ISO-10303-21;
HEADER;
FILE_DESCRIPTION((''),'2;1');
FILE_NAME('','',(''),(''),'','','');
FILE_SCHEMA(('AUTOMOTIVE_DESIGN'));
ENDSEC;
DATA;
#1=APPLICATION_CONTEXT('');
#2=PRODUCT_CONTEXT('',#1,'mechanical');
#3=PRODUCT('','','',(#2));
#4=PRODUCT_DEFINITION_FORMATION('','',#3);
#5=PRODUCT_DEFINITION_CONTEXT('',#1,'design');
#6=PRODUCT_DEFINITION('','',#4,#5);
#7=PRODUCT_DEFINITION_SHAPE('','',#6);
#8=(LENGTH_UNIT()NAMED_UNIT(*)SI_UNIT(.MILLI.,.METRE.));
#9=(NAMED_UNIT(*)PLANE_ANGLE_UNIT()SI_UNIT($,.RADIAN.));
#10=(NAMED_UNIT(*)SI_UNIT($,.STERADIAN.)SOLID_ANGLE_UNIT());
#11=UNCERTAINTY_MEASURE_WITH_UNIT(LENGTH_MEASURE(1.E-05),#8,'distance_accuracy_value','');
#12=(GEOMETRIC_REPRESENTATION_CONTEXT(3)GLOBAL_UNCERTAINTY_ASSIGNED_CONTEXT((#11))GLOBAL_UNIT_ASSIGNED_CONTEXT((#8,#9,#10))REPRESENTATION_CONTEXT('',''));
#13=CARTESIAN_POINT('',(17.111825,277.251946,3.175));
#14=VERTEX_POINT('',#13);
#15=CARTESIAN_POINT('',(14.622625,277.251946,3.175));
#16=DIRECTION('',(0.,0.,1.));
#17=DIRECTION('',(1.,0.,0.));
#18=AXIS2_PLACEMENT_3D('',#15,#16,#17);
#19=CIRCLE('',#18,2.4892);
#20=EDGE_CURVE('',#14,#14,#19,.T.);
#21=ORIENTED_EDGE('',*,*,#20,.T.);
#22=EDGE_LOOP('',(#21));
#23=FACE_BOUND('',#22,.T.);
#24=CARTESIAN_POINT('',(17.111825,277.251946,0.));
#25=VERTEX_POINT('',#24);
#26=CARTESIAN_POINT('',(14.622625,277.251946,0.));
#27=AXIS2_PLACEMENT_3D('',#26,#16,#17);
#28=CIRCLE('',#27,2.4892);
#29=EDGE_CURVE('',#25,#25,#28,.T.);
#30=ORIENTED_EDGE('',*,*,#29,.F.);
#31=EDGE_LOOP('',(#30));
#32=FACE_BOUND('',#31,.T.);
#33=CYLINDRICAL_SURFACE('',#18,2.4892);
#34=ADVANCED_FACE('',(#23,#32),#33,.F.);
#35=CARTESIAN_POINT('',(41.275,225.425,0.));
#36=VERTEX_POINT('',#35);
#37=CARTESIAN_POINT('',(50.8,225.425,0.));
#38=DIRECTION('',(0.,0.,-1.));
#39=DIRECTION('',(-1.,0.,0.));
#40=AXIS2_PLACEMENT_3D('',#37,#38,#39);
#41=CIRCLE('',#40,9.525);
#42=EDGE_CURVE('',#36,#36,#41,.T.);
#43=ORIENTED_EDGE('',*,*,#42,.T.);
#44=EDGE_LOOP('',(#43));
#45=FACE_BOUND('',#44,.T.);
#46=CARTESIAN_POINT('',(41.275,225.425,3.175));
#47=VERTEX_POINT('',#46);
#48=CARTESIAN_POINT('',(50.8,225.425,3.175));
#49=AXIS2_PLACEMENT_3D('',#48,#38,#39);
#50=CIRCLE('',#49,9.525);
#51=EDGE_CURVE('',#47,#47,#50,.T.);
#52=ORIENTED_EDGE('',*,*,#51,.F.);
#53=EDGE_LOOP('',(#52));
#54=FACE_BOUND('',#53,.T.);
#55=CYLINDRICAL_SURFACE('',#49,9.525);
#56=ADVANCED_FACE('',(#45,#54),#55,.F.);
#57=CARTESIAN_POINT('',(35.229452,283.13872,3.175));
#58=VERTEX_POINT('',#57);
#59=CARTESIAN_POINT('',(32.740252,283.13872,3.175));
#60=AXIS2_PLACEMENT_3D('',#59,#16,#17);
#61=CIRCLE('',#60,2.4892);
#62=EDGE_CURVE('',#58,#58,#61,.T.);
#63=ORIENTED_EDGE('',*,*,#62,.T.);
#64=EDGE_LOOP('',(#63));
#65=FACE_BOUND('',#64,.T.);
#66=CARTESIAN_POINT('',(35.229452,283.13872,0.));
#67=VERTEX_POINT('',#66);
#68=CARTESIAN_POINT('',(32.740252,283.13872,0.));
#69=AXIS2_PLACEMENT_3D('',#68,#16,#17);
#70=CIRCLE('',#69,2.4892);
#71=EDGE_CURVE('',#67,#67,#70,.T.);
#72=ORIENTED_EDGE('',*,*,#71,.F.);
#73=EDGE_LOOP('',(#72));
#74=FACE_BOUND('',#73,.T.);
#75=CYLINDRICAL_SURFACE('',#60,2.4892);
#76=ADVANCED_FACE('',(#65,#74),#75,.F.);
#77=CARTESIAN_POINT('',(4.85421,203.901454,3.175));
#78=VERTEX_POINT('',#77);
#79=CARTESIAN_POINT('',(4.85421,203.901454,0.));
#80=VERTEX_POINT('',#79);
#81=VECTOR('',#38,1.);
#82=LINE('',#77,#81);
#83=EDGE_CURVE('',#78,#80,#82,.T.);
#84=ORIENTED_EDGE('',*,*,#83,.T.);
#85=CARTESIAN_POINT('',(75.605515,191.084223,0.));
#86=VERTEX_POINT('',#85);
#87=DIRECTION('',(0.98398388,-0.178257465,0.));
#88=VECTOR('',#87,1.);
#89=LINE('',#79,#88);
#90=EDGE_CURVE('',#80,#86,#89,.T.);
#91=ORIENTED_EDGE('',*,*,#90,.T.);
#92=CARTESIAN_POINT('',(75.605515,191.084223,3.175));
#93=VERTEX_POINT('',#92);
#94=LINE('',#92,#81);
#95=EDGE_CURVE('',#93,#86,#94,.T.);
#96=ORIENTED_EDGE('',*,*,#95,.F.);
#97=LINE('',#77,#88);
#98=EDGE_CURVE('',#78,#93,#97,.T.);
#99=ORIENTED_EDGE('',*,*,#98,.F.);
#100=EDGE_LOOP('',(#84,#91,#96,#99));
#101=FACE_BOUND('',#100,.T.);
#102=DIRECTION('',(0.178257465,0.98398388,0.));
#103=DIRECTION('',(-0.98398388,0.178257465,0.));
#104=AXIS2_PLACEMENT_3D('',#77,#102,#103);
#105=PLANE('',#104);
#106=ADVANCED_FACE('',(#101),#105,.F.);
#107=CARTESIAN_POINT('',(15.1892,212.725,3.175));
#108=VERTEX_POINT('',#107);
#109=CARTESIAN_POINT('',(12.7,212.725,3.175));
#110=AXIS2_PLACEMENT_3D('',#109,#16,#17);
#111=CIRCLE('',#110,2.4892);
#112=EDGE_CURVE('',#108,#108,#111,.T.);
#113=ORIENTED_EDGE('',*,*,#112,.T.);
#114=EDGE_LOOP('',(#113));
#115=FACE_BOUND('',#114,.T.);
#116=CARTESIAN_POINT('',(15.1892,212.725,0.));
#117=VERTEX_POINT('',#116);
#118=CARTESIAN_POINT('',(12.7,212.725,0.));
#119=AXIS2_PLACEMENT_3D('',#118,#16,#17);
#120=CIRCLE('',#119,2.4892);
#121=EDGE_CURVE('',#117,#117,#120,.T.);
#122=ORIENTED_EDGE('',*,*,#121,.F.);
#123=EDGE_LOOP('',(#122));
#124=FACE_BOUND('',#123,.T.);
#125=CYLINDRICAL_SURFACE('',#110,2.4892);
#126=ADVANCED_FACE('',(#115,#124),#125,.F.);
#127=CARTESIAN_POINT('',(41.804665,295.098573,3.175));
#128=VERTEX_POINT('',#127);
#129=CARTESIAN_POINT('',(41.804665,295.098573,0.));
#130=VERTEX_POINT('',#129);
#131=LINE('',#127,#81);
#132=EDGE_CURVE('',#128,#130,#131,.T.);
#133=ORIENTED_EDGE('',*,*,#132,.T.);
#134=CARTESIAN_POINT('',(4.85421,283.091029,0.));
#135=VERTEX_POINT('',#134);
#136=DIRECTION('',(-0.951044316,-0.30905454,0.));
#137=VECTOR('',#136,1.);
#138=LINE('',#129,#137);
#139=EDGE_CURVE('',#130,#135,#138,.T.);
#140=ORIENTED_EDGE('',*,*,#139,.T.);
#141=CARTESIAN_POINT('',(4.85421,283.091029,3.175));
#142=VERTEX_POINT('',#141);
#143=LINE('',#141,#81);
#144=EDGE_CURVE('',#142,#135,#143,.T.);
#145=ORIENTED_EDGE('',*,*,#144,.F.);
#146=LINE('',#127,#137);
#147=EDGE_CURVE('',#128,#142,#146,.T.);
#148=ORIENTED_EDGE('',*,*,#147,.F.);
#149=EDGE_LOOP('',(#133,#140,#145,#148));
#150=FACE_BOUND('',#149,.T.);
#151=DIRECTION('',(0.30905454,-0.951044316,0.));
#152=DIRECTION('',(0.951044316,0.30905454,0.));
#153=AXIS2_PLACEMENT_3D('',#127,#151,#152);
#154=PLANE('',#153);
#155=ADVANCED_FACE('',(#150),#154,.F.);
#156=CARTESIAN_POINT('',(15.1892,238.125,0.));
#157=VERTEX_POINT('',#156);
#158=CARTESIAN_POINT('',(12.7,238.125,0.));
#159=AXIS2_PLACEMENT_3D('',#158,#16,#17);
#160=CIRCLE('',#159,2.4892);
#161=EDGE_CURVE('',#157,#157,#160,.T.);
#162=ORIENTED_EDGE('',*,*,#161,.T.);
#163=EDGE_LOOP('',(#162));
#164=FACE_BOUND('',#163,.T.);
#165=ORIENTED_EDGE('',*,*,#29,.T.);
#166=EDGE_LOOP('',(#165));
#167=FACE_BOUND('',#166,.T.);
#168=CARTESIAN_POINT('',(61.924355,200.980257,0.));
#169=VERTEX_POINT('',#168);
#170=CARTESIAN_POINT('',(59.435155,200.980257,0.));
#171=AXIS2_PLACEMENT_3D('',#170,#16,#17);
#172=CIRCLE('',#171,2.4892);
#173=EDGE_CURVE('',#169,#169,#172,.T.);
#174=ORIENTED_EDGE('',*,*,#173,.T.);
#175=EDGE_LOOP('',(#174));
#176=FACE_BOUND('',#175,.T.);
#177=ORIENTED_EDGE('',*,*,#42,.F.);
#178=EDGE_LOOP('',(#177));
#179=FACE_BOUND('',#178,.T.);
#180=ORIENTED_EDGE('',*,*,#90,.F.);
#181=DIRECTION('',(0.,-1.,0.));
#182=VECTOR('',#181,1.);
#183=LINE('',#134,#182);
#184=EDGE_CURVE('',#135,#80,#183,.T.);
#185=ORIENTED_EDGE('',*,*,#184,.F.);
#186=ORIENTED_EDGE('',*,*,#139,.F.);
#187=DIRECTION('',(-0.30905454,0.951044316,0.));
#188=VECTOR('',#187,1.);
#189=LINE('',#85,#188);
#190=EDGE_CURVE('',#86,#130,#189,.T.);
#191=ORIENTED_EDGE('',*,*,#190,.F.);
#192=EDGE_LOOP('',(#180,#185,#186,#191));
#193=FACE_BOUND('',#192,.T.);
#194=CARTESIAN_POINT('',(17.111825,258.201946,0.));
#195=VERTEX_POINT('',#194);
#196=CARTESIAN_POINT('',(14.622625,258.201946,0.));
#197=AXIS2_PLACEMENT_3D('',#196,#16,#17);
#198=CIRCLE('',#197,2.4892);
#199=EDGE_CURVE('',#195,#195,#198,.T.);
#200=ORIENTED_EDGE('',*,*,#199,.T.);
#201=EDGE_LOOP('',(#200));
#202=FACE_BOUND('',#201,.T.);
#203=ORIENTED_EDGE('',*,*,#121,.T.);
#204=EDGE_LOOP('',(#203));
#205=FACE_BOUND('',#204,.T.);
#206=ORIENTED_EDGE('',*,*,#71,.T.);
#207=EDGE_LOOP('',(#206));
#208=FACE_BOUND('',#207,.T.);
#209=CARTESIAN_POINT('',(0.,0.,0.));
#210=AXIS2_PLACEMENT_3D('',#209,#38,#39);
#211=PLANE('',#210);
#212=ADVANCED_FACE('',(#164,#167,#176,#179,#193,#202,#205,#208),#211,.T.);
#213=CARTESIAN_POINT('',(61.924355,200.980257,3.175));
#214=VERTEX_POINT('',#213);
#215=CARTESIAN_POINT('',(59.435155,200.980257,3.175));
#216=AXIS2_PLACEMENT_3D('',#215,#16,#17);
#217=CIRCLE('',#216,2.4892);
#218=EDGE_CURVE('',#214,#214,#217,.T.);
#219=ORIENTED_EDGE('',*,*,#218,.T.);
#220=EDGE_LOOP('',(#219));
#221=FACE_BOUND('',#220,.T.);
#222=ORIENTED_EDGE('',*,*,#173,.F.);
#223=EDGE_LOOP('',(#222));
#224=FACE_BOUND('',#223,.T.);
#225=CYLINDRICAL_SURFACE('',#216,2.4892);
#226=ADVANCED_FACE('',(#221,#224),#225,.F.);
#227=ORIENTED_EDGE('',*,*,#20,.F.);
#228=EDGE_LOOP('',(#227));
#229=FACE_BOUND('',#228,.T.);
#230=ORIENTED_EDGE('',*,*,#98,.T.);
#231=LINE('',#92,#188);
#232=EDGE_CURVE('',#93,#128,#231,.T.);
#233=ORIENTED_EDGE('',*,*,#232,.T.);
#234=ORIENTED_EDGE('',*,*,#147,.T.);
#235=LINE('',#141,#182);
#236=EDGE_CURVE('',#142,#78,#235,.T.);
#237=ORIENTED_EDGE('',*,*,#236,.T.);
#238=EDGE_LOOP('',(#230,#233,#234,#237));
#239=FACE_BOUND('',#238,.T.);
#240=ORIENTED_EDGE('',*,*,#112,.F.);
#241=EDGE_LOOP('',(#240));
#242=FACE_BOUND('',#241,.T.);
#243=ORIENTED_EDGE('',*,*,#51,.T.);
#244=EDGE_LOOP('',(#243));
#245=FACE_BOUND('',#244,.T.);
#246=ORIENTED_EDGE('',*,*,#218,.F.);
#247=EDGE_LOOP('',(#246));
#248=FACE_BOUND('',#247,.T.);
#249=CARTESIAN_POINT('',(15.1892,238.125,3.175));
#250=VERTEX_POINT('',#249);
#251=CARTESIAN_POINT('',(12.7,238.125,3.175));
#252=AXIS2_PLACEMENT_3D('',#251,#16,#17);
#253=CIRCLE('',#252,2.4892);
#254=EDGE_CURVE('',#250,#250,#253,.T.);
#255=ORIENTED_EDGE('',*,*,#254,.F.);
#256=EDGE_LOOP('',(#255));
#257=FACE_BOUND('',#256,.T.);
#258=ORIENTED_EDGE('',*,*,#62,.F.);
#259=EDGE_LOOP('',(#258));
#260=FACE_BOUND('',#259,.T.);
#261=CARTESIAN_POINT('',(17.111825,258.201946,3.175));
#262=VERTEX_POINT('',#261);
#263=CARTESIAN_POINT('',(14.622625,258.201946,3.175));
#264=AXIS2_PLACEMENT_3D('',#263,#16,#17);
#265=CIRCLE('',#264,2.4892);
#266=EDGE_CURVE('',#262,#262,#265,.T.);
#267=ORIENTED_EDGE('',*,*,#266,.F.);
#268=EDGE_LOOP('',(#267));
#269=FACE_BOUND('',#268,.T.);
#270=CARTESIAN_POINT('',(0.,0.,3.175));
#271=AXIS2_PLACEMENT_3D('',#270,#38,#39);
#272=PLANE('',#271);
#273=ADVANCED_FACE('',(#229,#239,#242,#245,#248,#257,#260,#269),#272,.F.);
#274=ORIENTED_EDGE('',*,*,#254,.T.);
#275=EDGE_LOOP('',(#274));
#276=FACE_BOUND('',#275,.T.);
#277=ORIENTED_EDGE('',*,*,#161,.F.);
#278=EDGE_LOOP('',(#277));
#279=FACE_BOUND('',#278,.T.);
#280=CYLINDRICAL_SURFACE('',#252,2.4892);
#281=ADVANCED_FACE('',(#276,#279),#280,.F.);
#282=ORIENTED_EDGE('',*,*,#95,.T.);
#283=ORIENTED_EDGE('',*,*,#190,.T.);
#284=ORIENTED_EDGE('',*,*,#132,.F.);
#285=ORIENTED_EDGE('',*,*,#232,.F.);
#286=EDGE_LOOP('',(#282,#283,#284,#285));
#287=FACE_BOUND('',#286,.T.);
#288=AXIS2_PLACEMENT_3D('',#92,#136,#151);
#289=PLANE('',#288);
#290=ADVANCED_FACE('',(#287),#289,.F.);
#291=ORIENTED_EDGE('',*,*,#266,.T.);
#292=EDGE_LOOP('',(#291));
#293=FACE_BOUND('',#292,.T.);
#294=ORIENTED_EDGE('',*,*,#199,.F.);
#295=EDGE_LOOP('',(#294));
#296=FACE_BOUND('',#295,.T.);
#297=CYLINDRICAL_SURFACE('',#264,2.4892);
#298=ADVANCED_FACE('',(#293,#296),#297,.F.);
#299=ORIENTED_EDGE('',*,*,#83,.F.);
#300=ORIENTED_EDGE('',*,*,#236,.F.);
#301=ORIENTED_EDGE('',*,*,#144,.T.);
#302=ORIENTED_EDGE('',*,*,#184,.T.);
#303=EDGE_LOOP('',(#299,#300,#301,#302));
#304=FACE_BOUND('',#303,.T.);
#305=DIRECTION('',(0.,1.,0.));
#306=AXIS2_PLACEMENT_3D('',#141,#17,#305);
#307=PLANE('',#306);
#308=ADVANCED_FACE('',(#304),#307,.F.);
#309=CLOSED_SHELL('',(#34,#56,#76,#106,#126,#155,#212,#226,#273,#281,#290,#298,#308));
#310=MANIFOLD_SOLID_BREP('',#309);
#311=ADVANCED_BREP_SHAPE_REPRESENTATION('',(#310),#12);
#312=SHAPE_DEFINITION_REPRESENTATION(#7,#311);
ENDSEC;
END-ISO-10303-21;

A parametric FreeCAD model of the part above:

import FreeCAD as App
import Part
import Sketcher
from FreeCAD import Vector
Q = App.Units.Quantity


def add_polygon(sketch, points):
    """Adds a closed chain of lines whose ends are joined by coincident constraints."""
    first, n = sketch.GeometryCount, len(points)
    for a, b in zip(points, points[1:] + points[:1]):
        sketch.addGeometry(Part.LineSegment(App.Vector(*a, 0), App.Vector(*b, 0)), False)
    for i in range(n):
        sketch.addConstraint(Sketcher.Constraint("Coincident", first + i, 2, first + (i + 1) % n, 1))

doc = App.newDocument("Part")
body = doc.addObject("PartDesign::Body", "Body")

sketch1 = body.newObject("Sketcher::SketchObject", "Sketch")
sketch1.AttachmentSupport = (doc.getObject("XY_Plane"), [""])
sketch1.MapMode = "FlatFace"
add_polygon(sketch1, [(75.605515, 191.084223), (41.804665, 295.098573), (4.85421, 283.091029), (4.85421, 203.901454)])
sketch1.addConstraint([
    Sketcher.Constraint("Vertical", 2),
    Sketcher.Constraint("DistanceY", 2, 2, 2, 1, Q("3.1176998 in")),
    Sketcher.Constraint("Distance", 3, Q("71.902911 mm")),
    Sketcher.Constraint("DistanceX", -1, 1, 1, 2, Q("4.85421 mm")),
    Sketcher.Constraint("DistanceY", -1, 1, 1, 2, Q("283.091029 mm")),
    Sketcher.Constraint("DistanceY", 2, 2, 0, 2, Q("91.197119 mm")),
    Sketcher.Constraint("DistanceY", 3, 2, 2, 2, Q("12.817231 mm")),
    Sketcher.Constraint("DistanceX", 0, 2, 3, 2, Q("33.800851 mm")),
])
pad1 = body.newObject("PartDesign::Pad", "Pad")
pad1.Profile = sketch1
pad1.Length = Q("0.125 in")

sketch2 = body.newObject("Sketcher::SketchObject", "Sketch001")
sketch2.AttachmentSupport = (doc.getObject("XY_Plane"), [""])
sketch2.MapMode = "FlatFace"
sketch2.AttachmentOffset = App.Placement(Vector(0, 0, 0.125 * 25.4), App.Rotation())
sketch2.addGeometry([
    Part.Circle(Vector(32.740252, 283.13872, 0), Vector(0, 0, 1), 2.4892),
    Part.Circle(Vector(59.435155, 200.980257, 0), Vector(0, 0, 1), 2.4892),
    Part.Circle(Vector(12.7, 238.125, 0), Vector(0, 0, 1), 2.4892),
    Part.Circle(Vector(12.7, 212.725, 0), Vector(0, 0, 1), 2.4892),
    Part.Circle(Vector(14.622625, 277.251946, 0), Vector(0, 0, 1), 2.4892),
    Part.Circle(Vector(14.622625, 258.201946, 0), Vector(0, 0, 1), 2.4892),
], False)
sketch2.addConstraint([
    Sketcher.Constraint("Equal", 0, 1),
    Sketcher.Constraint("Equal", 1, 2),
    Sketcher.Constraint("Equal", 2, 3),
    Sketcher.Constraint("Equal", 3, 4),
    Sketcher.Constraint("Equal", 4, 5),
    Sketcher.Constraint("Vertical", 2, 3, 3, 3),
    Sketcher.Constraint("Vertical", 4, 3, 5, 3),
    Sketcher.Constraint("Diameter", 0, Q("0.196 in")),
    Sketcher.Constraint("DistanceY", 3, 3, 2, 3, Q("1 in")),
    Sketcher.Constraint("DistanceX", -1, 1, 2, 3, Q("0.5 in")),
    Sketcher.Constraint("DistanceY", 5, 3, 4, 3, Q("0.75 in")),
    Sketcher.Constraint("DistanceY", -1, 1, 2, 3, Q("9.375 in")),
    Sketcher.Constraint("DistanceX", -1, 1, 0, 3, Q("32.740252 mm")),
    Sketcher.Constraint("DistanceY", -1, 1, 0, 3, Q("283.13872 mm")),
    Sketcher.Constraint("DistanceX", 4, 3, 1, 3, Q("44.812529 mm")),
    Sketcher.Constraint("DistanceY", 1, 3, 4, 3, Q("76.271689 mm")),
    Sketcher.Constraint("DistanceX", -1, 1, 1, 3, Q("59.435155 mm")),
    Sketcher.Constraint("DistanceY", -1, 1, 1, 3, Q("200.980257 mm")),
])
doc.recompute()
hole = body.newObject("PartDesign::Hole", "Hole")
hole.Profile = sketch2
hole.ThreadType = "None"
hole.Diameter = Q("0.196 in")
hole.DepthType = "ThroughAll"

sketch3 = body.newObject("Sketcher::SketchObject", "Sketch002")
sketch3.AttachmentSupport = (doc.getObject("XY_Plane"), [""])
sketch3.MapMode = "FlatFace"
sketch3.addGeometry(Part.Circle(Vector(50.8, 225.425, 0), Vector(0, 0, 1), 9.525), False)
sketch3.addConstraint([
    Sketcher.Constraint("Diameter", 0, Q("0.75 in")),
    Sketcher.Constraint("DistanceX", -1, 1, 0, 3, Q("2 in")),
    Sketcher.Constraint("DistanceY", -1, 1, 0, 3, Q("8.875 in")),
])
pocket1 = body.newObject("PartDesign::Pocket", "Pocket")
pocket1.Profile = sketch3
pocket1.Type = "ThroughAll"
pocket1.Reversed = True

doc.recompute()
